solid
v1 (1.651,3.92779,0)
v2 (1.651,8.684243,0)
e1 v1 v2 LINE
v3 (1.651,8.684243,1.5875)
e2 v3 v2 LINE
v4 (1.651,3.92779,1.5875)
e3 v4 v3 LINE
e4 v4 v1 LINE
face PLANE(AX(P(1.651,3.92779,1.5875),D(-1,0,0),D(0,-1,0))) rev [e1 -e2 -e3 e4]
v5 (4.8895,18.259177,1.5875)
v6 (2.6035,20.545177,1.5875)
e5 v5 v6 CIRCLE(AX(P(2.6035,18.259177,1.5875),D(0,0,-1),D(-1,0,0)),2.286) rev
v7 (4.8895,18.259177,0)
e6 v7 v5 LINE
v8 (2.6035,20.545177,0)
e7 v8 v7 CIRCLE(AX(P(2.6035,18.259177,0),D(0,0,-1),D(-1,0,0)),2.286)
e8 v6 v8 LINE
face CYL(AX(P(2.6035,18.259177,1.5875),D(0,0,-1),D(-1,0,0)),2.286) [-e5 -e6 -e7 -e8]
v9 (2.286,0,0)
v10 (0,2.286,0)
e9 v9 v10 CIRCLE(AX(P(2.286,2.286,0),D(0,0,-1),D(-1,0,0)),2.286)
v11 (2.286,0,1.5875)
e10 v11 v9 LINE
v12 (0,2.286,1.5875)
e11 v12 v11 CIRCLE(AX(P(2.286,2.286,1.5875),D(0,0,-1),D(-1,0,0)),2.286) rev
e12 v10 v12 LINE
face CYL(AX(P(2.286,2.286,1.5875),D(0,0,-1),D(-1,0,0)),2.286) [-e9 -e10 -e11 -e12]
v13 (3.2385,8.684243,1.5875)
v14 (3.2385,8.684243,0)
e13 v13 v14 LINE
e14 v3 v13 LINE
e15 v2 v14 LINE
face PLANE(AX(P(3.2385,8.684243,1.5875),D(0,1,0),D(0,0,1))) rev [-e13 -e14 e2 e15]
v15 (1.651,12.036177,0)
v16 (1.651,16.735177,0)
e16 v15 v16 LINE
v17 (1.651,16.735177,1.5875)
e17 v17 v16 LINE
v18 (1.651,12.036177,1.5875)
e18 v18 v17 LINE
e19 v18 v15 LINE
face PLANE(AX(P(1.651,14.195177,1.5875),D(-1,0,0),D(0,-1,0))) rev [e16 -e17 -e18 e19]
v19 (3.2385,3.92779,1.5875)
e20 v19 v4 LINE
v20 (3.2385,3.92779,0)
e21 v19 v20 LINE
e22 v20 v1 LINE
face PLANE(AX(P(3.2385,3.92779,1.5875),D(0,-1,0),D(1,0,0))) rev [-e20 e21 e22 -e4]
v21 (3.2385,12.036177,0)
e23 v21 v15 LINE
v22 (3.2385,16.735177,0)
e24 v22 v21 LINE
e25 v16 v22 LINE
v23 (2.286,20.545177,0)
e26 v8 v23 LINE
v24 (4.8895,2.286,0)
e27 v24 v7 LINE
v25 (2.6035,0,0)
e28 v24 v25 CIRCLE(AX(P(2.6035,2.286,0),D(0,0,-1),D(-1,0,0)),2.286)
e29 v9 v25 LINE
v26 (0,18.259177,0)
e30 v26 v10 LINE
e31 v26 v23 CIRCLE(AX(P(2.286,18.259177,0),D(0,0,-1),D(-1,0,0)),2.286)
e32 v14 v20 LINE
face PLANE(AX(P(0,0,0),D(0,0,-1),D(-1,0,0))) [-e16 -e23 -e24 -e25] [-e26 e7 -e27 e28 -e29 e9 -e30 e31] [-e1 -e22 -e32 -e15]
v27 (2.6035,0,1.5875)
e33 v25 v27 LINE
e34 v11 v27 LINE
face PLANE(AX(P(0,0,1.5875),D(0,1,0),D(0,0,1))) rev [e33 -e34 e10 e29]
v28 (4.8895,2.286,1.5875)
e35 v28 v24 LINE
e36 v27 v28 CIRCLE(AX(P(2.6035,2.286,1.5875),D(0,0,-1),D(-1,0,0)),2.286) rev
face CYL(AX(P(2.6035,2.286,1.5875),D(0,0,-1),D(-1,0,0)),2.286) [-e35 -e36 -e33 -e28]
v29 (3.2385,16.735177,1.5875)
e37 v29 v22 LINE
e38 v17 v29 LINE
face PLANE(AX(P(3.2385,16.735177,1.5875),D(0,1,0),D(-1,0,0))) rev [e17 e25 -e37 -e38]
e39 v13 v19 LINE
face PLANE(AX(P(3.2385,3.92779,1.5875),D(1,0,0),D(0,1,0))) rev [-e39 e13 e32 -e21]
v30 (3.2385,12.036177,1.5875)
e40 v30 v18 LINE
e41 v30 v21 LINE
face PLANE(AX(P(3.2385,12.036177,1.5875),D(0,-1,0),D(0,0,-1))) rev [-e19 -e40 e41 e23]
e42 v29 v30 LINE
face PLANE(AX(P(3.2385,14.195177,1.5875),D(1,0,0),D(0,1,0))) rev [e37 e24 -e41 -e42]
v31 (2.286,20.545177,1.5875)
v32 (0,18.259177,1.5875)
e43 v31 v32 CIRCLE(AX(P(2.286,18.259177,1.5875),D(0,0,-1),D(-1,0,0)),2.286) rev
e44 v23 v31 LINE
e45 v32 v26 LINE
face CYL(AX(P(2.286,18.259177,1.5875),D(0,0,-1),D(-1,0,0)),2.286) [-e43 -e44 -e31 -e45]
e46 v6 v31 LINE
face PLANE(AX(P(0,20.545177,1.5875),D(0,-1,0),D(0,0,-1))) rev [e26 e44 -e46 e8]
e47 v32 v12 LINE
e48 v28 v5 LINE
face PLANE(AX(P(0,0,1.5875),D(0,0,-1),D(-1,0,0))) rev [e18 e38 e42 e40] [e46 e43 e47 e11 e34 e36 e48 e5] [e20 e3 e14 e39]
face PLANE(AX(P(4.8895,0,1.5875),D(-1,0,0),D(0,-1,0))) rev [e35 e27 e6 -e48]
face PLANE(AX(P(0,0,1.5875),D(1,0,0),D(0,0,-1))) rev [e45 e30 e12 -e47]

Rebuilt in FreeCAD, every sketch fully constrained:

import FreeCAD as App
import Part
import Sketcher
Q = App.Units.Quantity


def edges_at(feature, points):
    """Names of the edges that pass closest to the given points."""
    edges = feature.Shape.Edges
    near = lambda p: min(range(len(edges)), key=lambda i: edges[i].distToShape(Part.Vertex(*p))[0])
    return sorted({f"Edge{near(p) + 1}" for p in points})

doc = App.newDocument("Part")
params = doc.addObject("Spreadsheet::Sheet", "Params")
for row, (alias, value) in enumerate([
    ("pad1_length", "0.0625 in"),
    ("sketch2_width", "0.0625 in"),
    ("sketch2_height", "0.185 in"),
    ("fillet_radius", "0.09 in"),
], start=1):
    params.set(f"A{row}", alias)
    params.set(f"B{row}", "=" + value)
    params.setAlias(f"B{row}", alias)

body = doc.addObject("PartDesign::Body", "Body")

sketch1 = body.newObject("Sketcher::SketchObject", "Sketch")
sketch1.AttachmentSupport = (doc.getObject("XY_Plane"), [""])
sketch1.MapMode = "FlatFace"
sketch1.addGeometry(Part.LineSegment(App.Vector(0, 20.5, 0), App.Vector(0, 0, 0)), False)
sketch1.addGeometry(Part.LineSegment(App.Vector(0, 0, 0), App.Vector(4.9, 0, 0)), False)
sketch1.addGeometry(Part.LineSegment(App.Vector(4.9, 0, 0), App.Vector(4.9, 20.5, 0)), False)
sketch1.addGeometry(Part.LineSegment(App.Vector(4.9, 20.5, 0), App.Vector(0, 20.5, 0)), False)
sketch1.addConstraint(Sketcher.Constraint("Coincident", 0, 2, 1, 1))
sketch1.addConstraint(Sketcher.Constraint("Coincident", 1, 2, 2, 1))
sketch1.addConstraint(Sketcher.Constraint("Coincident", 2, 2, 3, 1))
sketch1.addConstraint(Sketcher.Constraint("Coincident", 3, 2, 0, 1))
sketch1.addConstraint(Sketcher.Constraint("Vertical", 0))
sketch1.addConstraint(Sketcher.Constraint("Horizontal", 1))
sketch1.addConstraint(Sketcher.Constraint("Vertical", 2))
sketch1.addConstraint(Sketcher.Constraint("Horizontal", 3))
sketch1.addConstraint(Sketcher.Constraint("Coincident", 0, 2, -1, 1))
sketch1.addConstraint(Sketcher.Constraint("DistanceX", 1, 1, 1, 2, Q("0.1925 in")))
sketch1.addConstraint(Sketcher.Constraint("DistanceY", 0, 2, 0, 1, Q("20.545177 mm")))
pad1 = body.newObject("PartDesign::Pad", "Pad")
pad1.Profile = sketch1
pad1.setExpression("Length", "Params.pad1_length")

sketch2 = body.newObject("Sketcher::SketchObject", "Sketch001")
sketch2.AttachmentSupport = (doc.getObject("XY_Plane"), [""])
sketch2.MapMode = "FlatFace"
sketch2.addGeometry(Part.LineSegment(App.Vector(3.2, 12, 0), App.Vector(1.7, 12, 0)), False)
sketch2.addGeometry(Part.LineSegment(App.Vector(1.7, 12, 0), App.Vector(1.7, 16.7, 0)), False)
sketch2.addGeometry(Part.LineSegment(App.Vector(1.7, 16.7, 0), App.Vector(3.2, 16.7, 0)), False)
sketch2.addGeometry(Part.LineSegment(App.Vector(3.2, 16.7, 0), App.Vector(3.2, 12, 0)), False)
sketch2.addGeometry(Part.LineSegment(App.Vector(1.7, 8.7, 0), App.Vector(3.2, 8.7, 0)), False)
sketch2.addGeometry(Part.LineSegment(App.Vector(3.2, 8.7, 0), App.Vector(3.2, 3.9, 0)), False)
sketch2.addGeometry(Part.LineSegment(App.Vector(3.2, 3.9, 0), App.Vector(1.7, 3.9, 0)), False)
sketch2.addGeometry(Part.LineSegment(App.Vector(1.7, 3.9, 0), App.Vector(1.7, 8.7, 0)), False)
sketch2.addConstraint(Sketcher.Constraint("Coincident", 0, 2, 1, 1))
sketch2.addConstraint(Sketcher.Constraint("Coincident", 1, 2, 2, 1))
sketch2.addConstraint(Sketcher.Constraint("Coincident", 2, 2, 3, 1))
sketch2.addConstraint(Sketcher.Constraint("Coincident", 3, 2, 0, 1))
sketch2.addConstraint(Sketcher.Constraint("Coincident", 4, 2, 5, 1))
sketch2.addConstraint(Sketcher.Constraint("Coincident", 5, 2, 6, 1))
sketch2.addConstraint(Sketcher.Constraint("Coincident", 6, 2, 7, 1))
sketch2.addConstraint(Sketcher.Constraint("Coincident", 7, 2, 4, 1))
sketch2.addConstraint(Sketcher.Constraint("Horizontal", 0))
sketch2.addConstraint(Sketcher.Constraint("Vertical", 1))
sketch2.addConstraint(Sketcher.Constraint("Horizontal", 2))
sketch2.addConstraint(Sketcher.Constraint("Vertical", 3))
sketch2.addConstraint(Sketcher.Constraint("Horizontal", 4))
sketch2.addConstraint(Sketcher.Constraint("Vertical", 5))
sketch2.addConstraint(Sketcher.Constraint("Horizontal", 6))
sketch2.addConstraint(Sketcher.Constraint("Vertical", 7))
sketch2.addConstraint(Sketcher.Constraint("Vertical", 3, 2, 4, 2))
sketch2.addConstraint(Sketcher.Constraint("Vertical", 1, 2, 6, 2))
sketch2.addConstraint(Sketcher.Constraint("DistanceX", 0, 2, 0, 1, Q("0.0625 in")))
sketch2.addConstraint(Sketcher.Constraint("DistanceY", 1, 1, 1, 2, Q("0.185 in")))
sketch2.addConstraint(Sketcher.Constraint("DistanceX", -1, 1, 0, 2, Q("0.065 in")))
sketch2.addConstraint(Sketcher.Constraint("DistanceY", 5, 2, 5, 1, Q("4.756453 mm")))
sketch2.addConstraint(Sketcher.Constraint("DistanceY", -1, 1, 5, 2, Q("3.92779 mm")))
sketch2.addConstraint(Sketcher.Constraint("DistanceY", -1, 1, 0, 2, Q("12.036177 mm")))
sketch2.setExpression("Constraints[18]", "Params.sketch2_width")
sketch2.setExpression("Constraints[19]", "Params.sketch2_height")
pocket1 = body.newObject("PartDesign::Pocket", "Pocket")
pocket1.Profile = sketch2
pocket1.Type = "ThroughAll"
pocket1.Reversed = True
doc.recompute()

fillet = body.newObject("PartDesign::Fillet", "Fillet")
fillet.Base = (pocket1, edges_at(pocket1, [
    (0, 20.545, 0.794),
    (4.889, 20.545, 0.794),
    (4.889, 0, 0.794),
    (0, 0, 0.794),
]))
fillet.setExpression("Radius", "Params.fillet_radius")

doc.recompute()
